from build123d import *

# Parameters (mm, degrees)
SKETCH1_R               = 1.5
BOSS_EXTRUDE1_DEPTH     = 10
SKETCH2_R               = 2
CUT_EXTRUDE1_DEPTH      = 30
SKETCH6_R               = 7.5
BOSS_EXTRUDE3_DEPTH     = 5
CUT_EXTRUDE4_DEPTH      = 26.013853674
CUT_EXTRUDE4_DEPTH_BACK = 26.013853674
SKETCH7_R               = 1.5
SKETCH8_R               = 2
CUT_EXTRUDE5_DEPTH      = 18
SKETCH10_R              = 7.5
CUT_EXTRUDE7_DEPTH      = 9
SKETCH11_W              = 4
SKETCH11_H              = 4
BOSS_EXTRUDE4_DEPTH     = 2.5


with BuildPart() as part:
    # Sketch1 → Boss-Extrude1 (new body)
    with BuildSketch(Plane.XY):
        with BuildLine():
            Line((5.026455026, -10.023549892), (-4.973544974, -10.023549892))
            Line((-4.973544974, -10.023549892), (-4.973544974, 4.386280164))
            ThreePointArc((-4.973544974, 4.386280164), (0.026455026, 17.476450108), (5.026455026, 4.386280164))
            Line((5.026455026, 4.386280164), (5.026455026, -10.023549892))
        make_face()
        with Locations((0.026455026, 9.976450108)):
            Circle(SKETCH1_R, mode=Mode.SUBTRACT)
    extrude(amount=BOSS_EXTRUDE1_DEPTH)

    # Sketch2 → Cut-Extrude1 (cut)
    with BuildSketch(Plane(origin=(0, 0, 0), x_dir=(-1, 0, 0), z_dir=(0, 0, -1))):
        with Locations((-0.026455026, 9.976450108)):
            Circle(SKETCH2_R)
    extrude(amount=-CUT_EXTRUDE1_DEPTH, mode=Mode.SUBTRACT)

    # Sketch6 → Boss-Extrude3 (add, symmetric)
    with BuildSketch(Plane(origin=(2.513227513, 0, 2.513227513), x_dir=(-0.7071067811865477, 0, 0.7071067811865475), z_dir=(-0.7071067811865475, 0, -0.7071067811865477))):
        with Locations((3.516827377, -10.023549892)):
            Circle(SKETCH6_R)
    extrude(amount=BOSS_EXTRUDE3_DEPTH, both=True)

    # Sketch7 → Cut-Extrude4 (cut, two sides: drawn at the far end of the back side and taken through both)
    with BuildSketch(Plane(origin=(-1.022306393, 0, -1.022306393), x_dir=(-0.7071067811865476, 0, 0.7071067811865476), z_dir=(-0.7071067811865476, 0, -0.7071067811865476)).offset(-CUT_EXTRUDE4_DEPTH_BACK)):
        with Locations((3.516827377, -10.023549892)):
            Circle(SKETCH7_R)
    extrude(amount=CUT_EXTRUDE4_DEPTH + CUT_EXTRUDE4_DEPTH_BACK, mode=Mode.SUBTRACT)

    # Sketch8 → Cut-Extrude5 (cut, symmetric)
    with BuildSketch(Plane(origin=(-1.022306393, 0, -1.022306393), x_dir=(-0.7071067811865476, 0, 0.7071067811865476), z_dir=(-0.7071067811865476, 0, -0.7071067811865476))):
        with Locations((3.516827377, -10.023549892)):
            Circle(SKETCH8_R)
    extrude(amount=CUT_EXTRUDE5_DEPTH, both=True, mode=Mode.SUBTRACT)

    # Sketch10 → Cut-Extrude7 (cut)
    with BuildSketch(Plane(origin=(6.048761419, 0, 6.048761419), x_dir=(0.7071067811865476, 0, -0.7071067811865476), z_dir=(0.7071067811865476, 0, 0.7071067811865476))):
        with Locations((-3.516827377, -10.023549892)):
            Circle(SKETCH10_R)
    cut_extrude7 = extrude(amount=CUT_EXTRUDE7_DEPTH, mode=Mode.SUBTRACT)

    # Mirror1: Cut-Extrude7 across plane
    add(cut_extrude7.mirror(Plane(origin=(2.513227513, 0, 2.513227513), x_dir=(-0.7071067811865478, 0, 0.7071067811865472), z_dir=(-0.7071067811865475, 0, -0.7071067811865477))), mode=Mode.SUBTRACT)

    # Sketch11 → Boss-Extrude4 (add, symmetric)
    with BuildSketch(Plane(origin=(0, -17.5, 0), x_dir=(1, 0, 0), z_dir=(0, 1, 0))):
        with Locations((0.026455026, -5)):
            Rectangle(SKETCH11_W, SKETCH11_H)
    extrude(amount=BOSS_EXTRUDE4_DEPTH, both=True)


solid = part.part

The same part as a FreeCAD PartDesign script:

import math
import FreeCAD as App
import Part
import Sketcher
Q = App.Units.Quantity

doc = App.newDocument("Part")
params = doc.addObject("Spreadsheet::Sheet", "Params")
for row, (alias, value) in enumerate([
    ("sketch1_diameter", "3 mm"),
    ("sketch1_radius", "7.5 mm"),
    ("sketch1_width", "10 mm"),
    ("pad1_length", "10 mm"),
    ("sketch2_diameter", "4 mm"),
    ("pocket1_length", "30 mm"),
    ("sketch3_diameter", "15 mm"),
    ("pad2_length", "10 mm"),
    ("sketch4_diameter", "3 mm"),
    ("sketch5_diameter", "4 mm"),
    ("pocket3_length", "36 mm"),
    ("sketch6_diameter", "15 mm"),
    ("pocket4_length", "9 mm"),
    ("sketch7_width", "4 mm"),
    ("pad3_length", "5 mm"),
], start=1):
    params.set(f"A{row}", alias)
    params.set(f"B{row}", "=" + value)
    params.setAlias(f"B{row}", alias)

body = doc.addObject("PartDesign::Body", "Body")

sketch1 = doc.addObject("Sketcher::SketchObject", "Sketch")
body.addObject(sketch1)
sketch1.AttachmentSupport = (doc.XY_Plane, [""])
sketch1.MapMode = "FlatFace"
sketch1.addGeometry([
    Part.LineSegment(App.Vector(-5, -10, 0), App.Vector(5, -10, 0)),
    Part.LineSegment(App.Vector(5, -10, 0), App.Vector(5, 4.4, 0)),
    Part.ArcOfCircle(Part.Circle(App.Vector(0, 10, 0), App.Vector(0, 0, 1), 7.5), math.radians(-48), math.radians(228)),
    Part.LineSegment(App.Vector(-5, 4.4, 0), App.Vector(-5, -10, 0)),
    Part.Circle(App.Vector(0, 10, 0), App.Vector(0, 0, 1), 1.5),
], False)
sketch1.addConstraint([
    Sketcher.Constraint("Coincident", 0, 2, 1, 1),
    Sketcher.Constraint("Coincident", 1, 2, 2, 1),
    Sketcher.Constraint("Coincident", 2, 2, 3, 1),
    Sketcher.Constraint("Coincident", 3, 2, 0, 1),
    Sketcher.Constraint("Horizontal", 0),
    Sketcher.Constraint("Vertical", 1),
    Sketcher.Constraint("Vertical", 3),
    Sketcher.Constraint("Coincident", 4, 3, 2, 3),
    Sketcher.Constraint("Horizontal", 1, 2, 2, 2),
    Sketcher.Constraint("Diameter", 4, Q("3 mm")),
    Sketcher.Constraint("Radius", 2, Q("7.5 mm")),
    Sketcher.Constraint("DistanceX", 0, 1, 0, 2, Q("10 mm")),
    Sketcher.Constraint("DistanceY", 0, 2, 2, 3, Q("20 mm")),
    Sketcher.Constraint("DistanceY", -1, 1, 2, 3, Q("9.97645 mm")),
    Sketcher.Constraint("DistanceX", -1, 1, 2, 3, Q("0.026455 mm")),
])
sketch1.setExpression("Constraints[9]", "Params.sketch1_diameter")
sketch1.setExpression("Constraints[10]", "Params.sketch1_radius")
sketch1.setExpression("Constraints[11]", "Params.sketch1_width")
pad1 = doc.addObject("PartDesign::Pad", "Pad")
body.addObject(pad1)
pad1.Profile = sketch1
pad1.setExpression("Length", "Params.pad1_length")

sketch2 = doc.addObject("Sketcher::SketchObject", "Sketch001")
body.addObject(sketch2)
sketch2.AttachmentSupport = (doc.XY_Plane, [""])
sketch2.MapMode = "FlatFace"
sketch2.addGeometry(Part.Circle(App.Vector(0, 10, 0), App.Vector(0, 0, 1), 2), False)
sketch2.addConstraint([
    Sketcher.Constraint("Diameter", 0, Q("4 mm")),
    Sketcher.Constraint("DistanceY", -1, 1, 0, 3, Q("9.97645 mm")),
    Sketcher.Constraint("DistanceX", -1, 1, 0, 3, Q("0.026455 mm")),
])
sketch2.setExpression("Constraints[0]", "Params.sketch2_diameter")
pocket1 = doc.addObject("PartDesign::Pocket", "Pocket")
body.addObject(pocket1)
pocket1.Profile = sketch2
pocket1.setExpression("Length", "Params.pocket1_length")
pocket1.Reversed = True

sketch3 = doc.addObject("Sketcher::SketchObject", "Sketch002")
body.addObject(sketch3)
sketch3.Placement = App.Placement(App.Vector(2.513228, 0, 2.513228), App.Rotation(App.Vector(-0.707106781, 0, 0.707106781), App.Vector(0, 0.999999999, 0), App.Vector(-0.707106781, 0, -0.707106781), "ZXY"))
sketch3.addGeometry(Part.Circle(App.Vector(4, -10, 0), App.Vector(0, 0, 1), 8), False)
sketch3.addConstraint([
    Sketcher.Constraint("Diameter", 0, Q("15 mm")),
    Sketcher.Constraint("DistanceY", 0, 3, -1, 1, Q("10.02355 mm")),
    Sketcher.Constraint("DistanceX", -1, 1, 0, 3, Q("3.516827 mm")),
])
sketch3.setExpression("Constraints[0]", "Params.sketch3_diameter")
pad2 = doc.addObject("PartDesign::Pad", "Pad001")
body.addObject(pad2)
pad2.Profile = sketch3
pad2.setExpression("Length", "Params.pad2_length")
pad2.Midplane = True

sketch4 = doc.addObject("Sketcher::SketchObject", "Sketch003")
body.addObject(sketch4)
sketch4.Placement = App.Placement(App.Vector(-1.022306, 0, -1.022306), App.Rotation(App.Vector(-0.707106781, 0, 0.707106781), App.Vector(0, 0.999999999, 0), App.Vector(-0.707106781, 0, -0.707106781), "ZXY"))
sketch4.addGeometry(Part.Circle(App.Vector(3.5, -10, 0), App.Vector(0, 0, 1), 1.5), False)
sketch4.addConstraint([
    Sketcher.Constraint("Diameter", 0, Q("3 mm")),
    Sketcher.Constraint("DistanceY", 0, 3, -1, 1, Q("10.02355 mm")),
    Sketcher.Constraint("DistanceX", -1, 1, 0, 3, Q("3.516827 mm")),
])
sketch4.setExpression("Constraints[0]", "Params.sketch4_diameter")
pocket2 = doc.addObject("PartDesign::Pocket", "Pocket001")
body.addObject(pocket2)
pocket2.Profile = sketch4
pocket2.Type = "ThroughAll"
pocket2.Midplane = True

sketch5 = doc.addObject("Sketcher::SketchObject", "Sketch004")
body.addObject(sketch5)
sketch5.Placement = App.Placement(App.Vector(-1.022306, 0, -1.022306), App.Rotation(App.Vector(-0.707106781, 0, 0.707106781), App.Vector(0, 0.999999999, 0), App.Vector(-0.707106781, 0, -0.707106781), "ZXY"))
sketch5.addGeometry(Part.Circle(App.Vector(3.5, -10, 0), App.Vector(0, 0, 1), 2), False)
sketch5.addConstraint([
    Sketcher.Constraint("Diameter", 0, Q("4 mm")),
    Sketcher.Constraint("DistanceY", 0, 3, -1, 1, Q("10.02355 mm")),
    Sketcher.Constraint("DistanceX", -1, 1, 0, 3, Q("3.516827 mm")),
])
sketch5.setExpression("Constraints[0]", "Params.sketch5_diameter")
pocket3 = doc.addObject("PartDesign::Pocket", "Pocket002")
body.addObject(pocket3)
pocket3.Profile = sketch5
pocket3.setExpression("Length", "Params.pocket3_length")
pocket3.Midplane = True

sketch6 = doc.addObject("Sketcher::SketchObject", "Sketch005")
body.addObject(sketch6)
sketch6.Placement = App.Placement(App.Vector(6.048761, 0, 6.048761), App.Rotation(App.Vector(0.707106781, 0, -0.707106781), App.Vector(0, 0.999999999, 0), App.Vector(0.707106781, 0, 0.707106781), "ZXY"))
sketch6.addGeometry(Part.Circle(App.Vector(-4, -10, 0), App.Vector(0, 0, 1), 8), False)
sketch6.addConstraint([
    Sketcher.Constraint("Diameter", 0, Q("15 mm")),
    Sketcher.Constraint("DistanceY", 0, 3, -1, 1, Q("10.02355 mm")),
    Sketcher.Constraint("DistanceX", 0, 3, -1, 1, Q("3.516827 mm")),
])
sketch6.setExpression("Constraints[0]", "Params.sketch6_diameter")
pocket4 = doc.addObject("PartDesign::Pocket", "Pocket003")
body.addObject(pocket4)
pocket4.Profile = sketch6
pocket4.setExpression("Length", "Params.pocket4_length")
pocket4.Reversed = True
doc.recompute()

datumplane = doc.addObject("PartDesign::Plane", "DatumPlane")
body.addObject(datumplane)
datumplane.Placement = App.Placement(App.Vector(2.513228, 0, 2.513228), App.Rotation(App.Vector(0.707106781, 0, -0.707106781), App.Vector(0, -1, 0), App.Vector(-0.707106781, 0, -0.707106781), "ZXY"))
mirrored = doc.addObject("PartDesign::Mirrored", "Mirrored")
body.addObject(mirrored)
mirrored.Originals = [pocket4]
mirrored.MirrorPlane = (datumplane, [""])
body.Tip = mirrored

sketch7 = doc.addObject("Sketcher::SketchObject", "Sketch006")
body.addObject(sketch7)
sketch7.AttachmentSupport = (doc.XZ_Plane, [""])
sketch7.MapMode = "FlatFace"
sketch7.AttachmentOffset = App.Placement(App.Vector(0, 0, 17.5), App.Rotation())
sketch7.addGeometry([
    Part.LineSegment(App.Vector(-2, 3, 0), App.Vector(-2, 7, 0)),
    Part.LineSegment(App.Vector(-2, 7, 0), App.Vector(2, 7, 0)),
    Part.LineSegment(App.Vector(2, 7, 0), App.Vector(2, 3, 0)),
    Part.LineSegment(App.Vector(2, 3, 0), App.Vector(-2, 3, 0)),
], False)
sketch7.addConstraint([
    Sketcher.Constraint("Coincident", 0, 2, 1, 1),
    Sketcher.Constraint("Coincident", 1, 2, 2, 1),
    Sketcher.Constraint("Coincident", 2, 2, 3, 1),
    Sketcher.Constraint("Coincident", 3, 2, 0, 1),
    Sketcher.Constraint("Vertical", 0),
    Sketcher.Constraint("Horizontal", 1),
    Sketcher.Constraint("Vertical", 2),
    Sketcher.Constraint("Horizontal", 3),
    Sketcher.Constraint("Equal", 3, 0),
    Sketcher.Constraint("DistanceX", 1, 1, 1, 2, Q("4 mm")),
    Sketcher.Constraint("DistanceY", -1, 1, 0, 2, Q("7 mm")),
    Sketcher.Constraint("DistanceX", 0, 2, -1, 1, Q("1.973545 mm")),
])
sketch7.setExpression("Constraints[9]", "Params.sketch7_width")
pad3 = doc.addObject("PartDesign::Pad", "Pad002")
body.addObject(pad3)
pad3.Profile = sketch7
pad3.setExpression("Length", "Params.pad3_length")
pad3.Midplane = True

doc.recompute()
